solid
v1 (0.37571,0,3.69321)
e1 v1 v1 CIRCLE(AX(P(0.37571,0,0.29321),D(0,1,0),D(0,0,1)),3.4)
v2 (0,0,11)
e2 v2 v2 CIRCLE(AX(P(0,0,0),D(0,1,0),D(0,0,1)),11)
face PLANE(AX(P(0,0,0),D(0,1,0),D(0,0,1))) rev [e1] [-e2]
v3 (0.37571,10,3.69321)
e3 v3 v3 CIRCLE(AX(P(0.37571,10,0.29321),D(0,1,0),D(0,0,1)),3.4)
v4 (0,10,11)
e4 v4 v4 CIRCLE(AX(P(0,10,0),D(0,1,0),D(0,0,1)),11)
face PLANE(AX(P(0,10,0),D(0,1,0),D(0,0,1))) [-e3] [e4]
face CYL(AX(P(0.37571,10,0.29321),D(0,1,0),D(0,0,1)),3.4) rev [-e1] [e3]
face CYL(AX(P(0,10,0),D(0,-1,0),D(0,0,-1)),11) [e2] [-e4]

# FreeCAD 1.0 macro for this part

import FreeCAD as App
import Part
import Sketcher
from FreeCAD import Vector

doc = App.newDocument("Part")
body = doc.addObject("PartDesign::Body", "Body")

sketch1 = body.newObject("Sketcher::SketchObject", "Sketch")
sketch1.AttachmentSupport = (doc.getObject("XZ_Plane"), [""])
sketch1.MapMode = "FlatFace"
sketch1.addGeometry(Part.Circle(Vector(0, 0, 0), Vector(0, 0, 1), 11), False)
sketch1.addConstraint(Sketcher.Constraint("Coincident", 0, 3, -1, 1))
sketch1.addConstraint(Sketcher.Constraint("Diameter", 0, 22.0))
pad1 = body.newObject("PartDesign::Pad", "Pad")
pad1.Profile = sketch1
pad1.Length = 10
pad1.Reversed = True

sketch2 = body.newObject("Sketcher::SketchObject", "Sketch001")
sketch2.AttachmentSupport = (doc.getObject("XZ_Plane"), [""])
sketch2.MapMode = "FlatFace"
sketch2.AttachmentOffset = App.Placement(Vector(0, 0, -10), App.Rotation())
sketch2.addGeometry(Part.Circle(Vector(0.37571, 0.29321, 0), Vector(0, 0, 1), 3.4), False)
sketch2.addConstraint(Sketcher.Constraint("Diameter", 0, 6.8))
sketch2.addConstraint(Sketcher.Constraint("DistanceX", -1, 1, 0, 3, 0.37571))
sketch2.addConstraint(Sketcher.Constraint("DistanceY", -1, 1, 0, 3, 0.29321))
doc.recompute()
hole = body.newObject("PartDesign::Hole", "Hole")
hole.Profile = sketch2
hole.ThreadType = "None"
hole.Diameter = 6.8
hole.DepthType = "ThroughAll"
hole.Reversed = True

doc.recompute()
